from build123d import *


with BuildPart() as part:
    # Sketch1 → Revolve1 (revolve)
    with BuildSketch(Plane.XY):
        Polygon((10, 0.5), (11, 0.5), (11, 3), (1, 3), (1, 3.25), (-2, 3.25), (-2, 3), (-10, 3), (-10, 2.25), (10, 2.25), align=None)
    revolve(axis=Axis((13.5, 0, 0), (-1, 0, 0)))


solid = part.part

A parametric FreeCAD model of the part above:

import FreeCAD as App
import Part
import Sketcher
from FreeCAD import Vector
Q = App.Units.Quantity


def add_polygon(sketch, points):
    """Adds a closed chain of lines whose ends are joined by coincident constraints."""
    first, n = sketch.GeometryCount, len(points)
    for a, b in zip(points, points[1:] + points[:1]):
        sketch.addGeometry(Part.LineSegment(App.Vector(*a, 0), App.Vector(*b, 0)), False)
    for i in range(n):
        sketch.addConstraint(Sketcher.Constraint("Coincident", first + i, 2, first + (i + 1) % n, 1))

doc = App.newDocument("Part")
body = doc.addObject("PartDesign::Body", "Body")

# Sketch on XY plane
sketch1 = doc.addObject("Sketcher::SketchObject", "Sketch")
body.addObject(sketch1)
sketch1.AttachmentSupport = (doc.XY_Plane, [""])
sketch1.MapMode = "FlatFace"
add_polygon(sketch1, [(10, 0.5), (11, 0.5), (11, 3), (1, 3), (1, 3.25), (-2, 3.25), (-2, 3), (-10, 3), (-10, 2.25), (10, 2.25)])  # lines 0-9
sketch1.addConstraint([
    Sketcher.Constraint("Horizontal", 0),
    Sketcher.Constraint("Vertical", 1),
    Sketcher.Constraint("Horizontal", 2),
    Sketcher.Constraint("Vertical", 3),
    Sketcher.Constraint("Horizontal", 4),
    Sketcher.Constraint("Vertical", 5),
    Sketcher.Constraint("Horizontal", 6),
    Sketcher.Constraint("Vertical", 7),
    Sketcher.Constraint("Horizontal", 8),
    Sketcher.Constraint("Vertical", 9),
    Sketcher.Constraint("Horizontal", 2, 2, 5, 2),
    Sketcher.Constraint("DistanceX", 0, 1, 0, 2, Q("1 mm")),
    Sketcher.Constraint("DistanceX", 2, 2, 2, 1, Q("10 mm")),
    Sketcher.Constraint("DistanceX", 4, 2, 4, 1, Q("3 mm")),
    Sketcher.Constraint("DistanceX", 6, 2, 6, 1, Q("8 mm")),
    Sketcher.Constraint("DistanceY", 1, 1, 1, 2, Q("2.5 mm")),
    Sketcher.Constraint("DistanceX", -1, 1, 0, 2, Q("11 mm")),
    Sketcher.Constraint("DistanceY", -1, 1, 1, 2, Q("3 mm")),
    Sketcher.Constraint("DistanceY", 7, 2, 4, 2, Q("1 mm")),
    Sketcher.Constraint("DistanceY", 3, 1, 3, 2, Q("0.25 mm")),
])
revolution = doc.addObject("PartDesign::Revolution", "Revolution")
body.addObject(revolution)
revolution.Profile = sketch1
revolution.ReferenceAxis = (sketch1, ["H_Axis"])
revolution.Angle = 360

doc.recompute()
